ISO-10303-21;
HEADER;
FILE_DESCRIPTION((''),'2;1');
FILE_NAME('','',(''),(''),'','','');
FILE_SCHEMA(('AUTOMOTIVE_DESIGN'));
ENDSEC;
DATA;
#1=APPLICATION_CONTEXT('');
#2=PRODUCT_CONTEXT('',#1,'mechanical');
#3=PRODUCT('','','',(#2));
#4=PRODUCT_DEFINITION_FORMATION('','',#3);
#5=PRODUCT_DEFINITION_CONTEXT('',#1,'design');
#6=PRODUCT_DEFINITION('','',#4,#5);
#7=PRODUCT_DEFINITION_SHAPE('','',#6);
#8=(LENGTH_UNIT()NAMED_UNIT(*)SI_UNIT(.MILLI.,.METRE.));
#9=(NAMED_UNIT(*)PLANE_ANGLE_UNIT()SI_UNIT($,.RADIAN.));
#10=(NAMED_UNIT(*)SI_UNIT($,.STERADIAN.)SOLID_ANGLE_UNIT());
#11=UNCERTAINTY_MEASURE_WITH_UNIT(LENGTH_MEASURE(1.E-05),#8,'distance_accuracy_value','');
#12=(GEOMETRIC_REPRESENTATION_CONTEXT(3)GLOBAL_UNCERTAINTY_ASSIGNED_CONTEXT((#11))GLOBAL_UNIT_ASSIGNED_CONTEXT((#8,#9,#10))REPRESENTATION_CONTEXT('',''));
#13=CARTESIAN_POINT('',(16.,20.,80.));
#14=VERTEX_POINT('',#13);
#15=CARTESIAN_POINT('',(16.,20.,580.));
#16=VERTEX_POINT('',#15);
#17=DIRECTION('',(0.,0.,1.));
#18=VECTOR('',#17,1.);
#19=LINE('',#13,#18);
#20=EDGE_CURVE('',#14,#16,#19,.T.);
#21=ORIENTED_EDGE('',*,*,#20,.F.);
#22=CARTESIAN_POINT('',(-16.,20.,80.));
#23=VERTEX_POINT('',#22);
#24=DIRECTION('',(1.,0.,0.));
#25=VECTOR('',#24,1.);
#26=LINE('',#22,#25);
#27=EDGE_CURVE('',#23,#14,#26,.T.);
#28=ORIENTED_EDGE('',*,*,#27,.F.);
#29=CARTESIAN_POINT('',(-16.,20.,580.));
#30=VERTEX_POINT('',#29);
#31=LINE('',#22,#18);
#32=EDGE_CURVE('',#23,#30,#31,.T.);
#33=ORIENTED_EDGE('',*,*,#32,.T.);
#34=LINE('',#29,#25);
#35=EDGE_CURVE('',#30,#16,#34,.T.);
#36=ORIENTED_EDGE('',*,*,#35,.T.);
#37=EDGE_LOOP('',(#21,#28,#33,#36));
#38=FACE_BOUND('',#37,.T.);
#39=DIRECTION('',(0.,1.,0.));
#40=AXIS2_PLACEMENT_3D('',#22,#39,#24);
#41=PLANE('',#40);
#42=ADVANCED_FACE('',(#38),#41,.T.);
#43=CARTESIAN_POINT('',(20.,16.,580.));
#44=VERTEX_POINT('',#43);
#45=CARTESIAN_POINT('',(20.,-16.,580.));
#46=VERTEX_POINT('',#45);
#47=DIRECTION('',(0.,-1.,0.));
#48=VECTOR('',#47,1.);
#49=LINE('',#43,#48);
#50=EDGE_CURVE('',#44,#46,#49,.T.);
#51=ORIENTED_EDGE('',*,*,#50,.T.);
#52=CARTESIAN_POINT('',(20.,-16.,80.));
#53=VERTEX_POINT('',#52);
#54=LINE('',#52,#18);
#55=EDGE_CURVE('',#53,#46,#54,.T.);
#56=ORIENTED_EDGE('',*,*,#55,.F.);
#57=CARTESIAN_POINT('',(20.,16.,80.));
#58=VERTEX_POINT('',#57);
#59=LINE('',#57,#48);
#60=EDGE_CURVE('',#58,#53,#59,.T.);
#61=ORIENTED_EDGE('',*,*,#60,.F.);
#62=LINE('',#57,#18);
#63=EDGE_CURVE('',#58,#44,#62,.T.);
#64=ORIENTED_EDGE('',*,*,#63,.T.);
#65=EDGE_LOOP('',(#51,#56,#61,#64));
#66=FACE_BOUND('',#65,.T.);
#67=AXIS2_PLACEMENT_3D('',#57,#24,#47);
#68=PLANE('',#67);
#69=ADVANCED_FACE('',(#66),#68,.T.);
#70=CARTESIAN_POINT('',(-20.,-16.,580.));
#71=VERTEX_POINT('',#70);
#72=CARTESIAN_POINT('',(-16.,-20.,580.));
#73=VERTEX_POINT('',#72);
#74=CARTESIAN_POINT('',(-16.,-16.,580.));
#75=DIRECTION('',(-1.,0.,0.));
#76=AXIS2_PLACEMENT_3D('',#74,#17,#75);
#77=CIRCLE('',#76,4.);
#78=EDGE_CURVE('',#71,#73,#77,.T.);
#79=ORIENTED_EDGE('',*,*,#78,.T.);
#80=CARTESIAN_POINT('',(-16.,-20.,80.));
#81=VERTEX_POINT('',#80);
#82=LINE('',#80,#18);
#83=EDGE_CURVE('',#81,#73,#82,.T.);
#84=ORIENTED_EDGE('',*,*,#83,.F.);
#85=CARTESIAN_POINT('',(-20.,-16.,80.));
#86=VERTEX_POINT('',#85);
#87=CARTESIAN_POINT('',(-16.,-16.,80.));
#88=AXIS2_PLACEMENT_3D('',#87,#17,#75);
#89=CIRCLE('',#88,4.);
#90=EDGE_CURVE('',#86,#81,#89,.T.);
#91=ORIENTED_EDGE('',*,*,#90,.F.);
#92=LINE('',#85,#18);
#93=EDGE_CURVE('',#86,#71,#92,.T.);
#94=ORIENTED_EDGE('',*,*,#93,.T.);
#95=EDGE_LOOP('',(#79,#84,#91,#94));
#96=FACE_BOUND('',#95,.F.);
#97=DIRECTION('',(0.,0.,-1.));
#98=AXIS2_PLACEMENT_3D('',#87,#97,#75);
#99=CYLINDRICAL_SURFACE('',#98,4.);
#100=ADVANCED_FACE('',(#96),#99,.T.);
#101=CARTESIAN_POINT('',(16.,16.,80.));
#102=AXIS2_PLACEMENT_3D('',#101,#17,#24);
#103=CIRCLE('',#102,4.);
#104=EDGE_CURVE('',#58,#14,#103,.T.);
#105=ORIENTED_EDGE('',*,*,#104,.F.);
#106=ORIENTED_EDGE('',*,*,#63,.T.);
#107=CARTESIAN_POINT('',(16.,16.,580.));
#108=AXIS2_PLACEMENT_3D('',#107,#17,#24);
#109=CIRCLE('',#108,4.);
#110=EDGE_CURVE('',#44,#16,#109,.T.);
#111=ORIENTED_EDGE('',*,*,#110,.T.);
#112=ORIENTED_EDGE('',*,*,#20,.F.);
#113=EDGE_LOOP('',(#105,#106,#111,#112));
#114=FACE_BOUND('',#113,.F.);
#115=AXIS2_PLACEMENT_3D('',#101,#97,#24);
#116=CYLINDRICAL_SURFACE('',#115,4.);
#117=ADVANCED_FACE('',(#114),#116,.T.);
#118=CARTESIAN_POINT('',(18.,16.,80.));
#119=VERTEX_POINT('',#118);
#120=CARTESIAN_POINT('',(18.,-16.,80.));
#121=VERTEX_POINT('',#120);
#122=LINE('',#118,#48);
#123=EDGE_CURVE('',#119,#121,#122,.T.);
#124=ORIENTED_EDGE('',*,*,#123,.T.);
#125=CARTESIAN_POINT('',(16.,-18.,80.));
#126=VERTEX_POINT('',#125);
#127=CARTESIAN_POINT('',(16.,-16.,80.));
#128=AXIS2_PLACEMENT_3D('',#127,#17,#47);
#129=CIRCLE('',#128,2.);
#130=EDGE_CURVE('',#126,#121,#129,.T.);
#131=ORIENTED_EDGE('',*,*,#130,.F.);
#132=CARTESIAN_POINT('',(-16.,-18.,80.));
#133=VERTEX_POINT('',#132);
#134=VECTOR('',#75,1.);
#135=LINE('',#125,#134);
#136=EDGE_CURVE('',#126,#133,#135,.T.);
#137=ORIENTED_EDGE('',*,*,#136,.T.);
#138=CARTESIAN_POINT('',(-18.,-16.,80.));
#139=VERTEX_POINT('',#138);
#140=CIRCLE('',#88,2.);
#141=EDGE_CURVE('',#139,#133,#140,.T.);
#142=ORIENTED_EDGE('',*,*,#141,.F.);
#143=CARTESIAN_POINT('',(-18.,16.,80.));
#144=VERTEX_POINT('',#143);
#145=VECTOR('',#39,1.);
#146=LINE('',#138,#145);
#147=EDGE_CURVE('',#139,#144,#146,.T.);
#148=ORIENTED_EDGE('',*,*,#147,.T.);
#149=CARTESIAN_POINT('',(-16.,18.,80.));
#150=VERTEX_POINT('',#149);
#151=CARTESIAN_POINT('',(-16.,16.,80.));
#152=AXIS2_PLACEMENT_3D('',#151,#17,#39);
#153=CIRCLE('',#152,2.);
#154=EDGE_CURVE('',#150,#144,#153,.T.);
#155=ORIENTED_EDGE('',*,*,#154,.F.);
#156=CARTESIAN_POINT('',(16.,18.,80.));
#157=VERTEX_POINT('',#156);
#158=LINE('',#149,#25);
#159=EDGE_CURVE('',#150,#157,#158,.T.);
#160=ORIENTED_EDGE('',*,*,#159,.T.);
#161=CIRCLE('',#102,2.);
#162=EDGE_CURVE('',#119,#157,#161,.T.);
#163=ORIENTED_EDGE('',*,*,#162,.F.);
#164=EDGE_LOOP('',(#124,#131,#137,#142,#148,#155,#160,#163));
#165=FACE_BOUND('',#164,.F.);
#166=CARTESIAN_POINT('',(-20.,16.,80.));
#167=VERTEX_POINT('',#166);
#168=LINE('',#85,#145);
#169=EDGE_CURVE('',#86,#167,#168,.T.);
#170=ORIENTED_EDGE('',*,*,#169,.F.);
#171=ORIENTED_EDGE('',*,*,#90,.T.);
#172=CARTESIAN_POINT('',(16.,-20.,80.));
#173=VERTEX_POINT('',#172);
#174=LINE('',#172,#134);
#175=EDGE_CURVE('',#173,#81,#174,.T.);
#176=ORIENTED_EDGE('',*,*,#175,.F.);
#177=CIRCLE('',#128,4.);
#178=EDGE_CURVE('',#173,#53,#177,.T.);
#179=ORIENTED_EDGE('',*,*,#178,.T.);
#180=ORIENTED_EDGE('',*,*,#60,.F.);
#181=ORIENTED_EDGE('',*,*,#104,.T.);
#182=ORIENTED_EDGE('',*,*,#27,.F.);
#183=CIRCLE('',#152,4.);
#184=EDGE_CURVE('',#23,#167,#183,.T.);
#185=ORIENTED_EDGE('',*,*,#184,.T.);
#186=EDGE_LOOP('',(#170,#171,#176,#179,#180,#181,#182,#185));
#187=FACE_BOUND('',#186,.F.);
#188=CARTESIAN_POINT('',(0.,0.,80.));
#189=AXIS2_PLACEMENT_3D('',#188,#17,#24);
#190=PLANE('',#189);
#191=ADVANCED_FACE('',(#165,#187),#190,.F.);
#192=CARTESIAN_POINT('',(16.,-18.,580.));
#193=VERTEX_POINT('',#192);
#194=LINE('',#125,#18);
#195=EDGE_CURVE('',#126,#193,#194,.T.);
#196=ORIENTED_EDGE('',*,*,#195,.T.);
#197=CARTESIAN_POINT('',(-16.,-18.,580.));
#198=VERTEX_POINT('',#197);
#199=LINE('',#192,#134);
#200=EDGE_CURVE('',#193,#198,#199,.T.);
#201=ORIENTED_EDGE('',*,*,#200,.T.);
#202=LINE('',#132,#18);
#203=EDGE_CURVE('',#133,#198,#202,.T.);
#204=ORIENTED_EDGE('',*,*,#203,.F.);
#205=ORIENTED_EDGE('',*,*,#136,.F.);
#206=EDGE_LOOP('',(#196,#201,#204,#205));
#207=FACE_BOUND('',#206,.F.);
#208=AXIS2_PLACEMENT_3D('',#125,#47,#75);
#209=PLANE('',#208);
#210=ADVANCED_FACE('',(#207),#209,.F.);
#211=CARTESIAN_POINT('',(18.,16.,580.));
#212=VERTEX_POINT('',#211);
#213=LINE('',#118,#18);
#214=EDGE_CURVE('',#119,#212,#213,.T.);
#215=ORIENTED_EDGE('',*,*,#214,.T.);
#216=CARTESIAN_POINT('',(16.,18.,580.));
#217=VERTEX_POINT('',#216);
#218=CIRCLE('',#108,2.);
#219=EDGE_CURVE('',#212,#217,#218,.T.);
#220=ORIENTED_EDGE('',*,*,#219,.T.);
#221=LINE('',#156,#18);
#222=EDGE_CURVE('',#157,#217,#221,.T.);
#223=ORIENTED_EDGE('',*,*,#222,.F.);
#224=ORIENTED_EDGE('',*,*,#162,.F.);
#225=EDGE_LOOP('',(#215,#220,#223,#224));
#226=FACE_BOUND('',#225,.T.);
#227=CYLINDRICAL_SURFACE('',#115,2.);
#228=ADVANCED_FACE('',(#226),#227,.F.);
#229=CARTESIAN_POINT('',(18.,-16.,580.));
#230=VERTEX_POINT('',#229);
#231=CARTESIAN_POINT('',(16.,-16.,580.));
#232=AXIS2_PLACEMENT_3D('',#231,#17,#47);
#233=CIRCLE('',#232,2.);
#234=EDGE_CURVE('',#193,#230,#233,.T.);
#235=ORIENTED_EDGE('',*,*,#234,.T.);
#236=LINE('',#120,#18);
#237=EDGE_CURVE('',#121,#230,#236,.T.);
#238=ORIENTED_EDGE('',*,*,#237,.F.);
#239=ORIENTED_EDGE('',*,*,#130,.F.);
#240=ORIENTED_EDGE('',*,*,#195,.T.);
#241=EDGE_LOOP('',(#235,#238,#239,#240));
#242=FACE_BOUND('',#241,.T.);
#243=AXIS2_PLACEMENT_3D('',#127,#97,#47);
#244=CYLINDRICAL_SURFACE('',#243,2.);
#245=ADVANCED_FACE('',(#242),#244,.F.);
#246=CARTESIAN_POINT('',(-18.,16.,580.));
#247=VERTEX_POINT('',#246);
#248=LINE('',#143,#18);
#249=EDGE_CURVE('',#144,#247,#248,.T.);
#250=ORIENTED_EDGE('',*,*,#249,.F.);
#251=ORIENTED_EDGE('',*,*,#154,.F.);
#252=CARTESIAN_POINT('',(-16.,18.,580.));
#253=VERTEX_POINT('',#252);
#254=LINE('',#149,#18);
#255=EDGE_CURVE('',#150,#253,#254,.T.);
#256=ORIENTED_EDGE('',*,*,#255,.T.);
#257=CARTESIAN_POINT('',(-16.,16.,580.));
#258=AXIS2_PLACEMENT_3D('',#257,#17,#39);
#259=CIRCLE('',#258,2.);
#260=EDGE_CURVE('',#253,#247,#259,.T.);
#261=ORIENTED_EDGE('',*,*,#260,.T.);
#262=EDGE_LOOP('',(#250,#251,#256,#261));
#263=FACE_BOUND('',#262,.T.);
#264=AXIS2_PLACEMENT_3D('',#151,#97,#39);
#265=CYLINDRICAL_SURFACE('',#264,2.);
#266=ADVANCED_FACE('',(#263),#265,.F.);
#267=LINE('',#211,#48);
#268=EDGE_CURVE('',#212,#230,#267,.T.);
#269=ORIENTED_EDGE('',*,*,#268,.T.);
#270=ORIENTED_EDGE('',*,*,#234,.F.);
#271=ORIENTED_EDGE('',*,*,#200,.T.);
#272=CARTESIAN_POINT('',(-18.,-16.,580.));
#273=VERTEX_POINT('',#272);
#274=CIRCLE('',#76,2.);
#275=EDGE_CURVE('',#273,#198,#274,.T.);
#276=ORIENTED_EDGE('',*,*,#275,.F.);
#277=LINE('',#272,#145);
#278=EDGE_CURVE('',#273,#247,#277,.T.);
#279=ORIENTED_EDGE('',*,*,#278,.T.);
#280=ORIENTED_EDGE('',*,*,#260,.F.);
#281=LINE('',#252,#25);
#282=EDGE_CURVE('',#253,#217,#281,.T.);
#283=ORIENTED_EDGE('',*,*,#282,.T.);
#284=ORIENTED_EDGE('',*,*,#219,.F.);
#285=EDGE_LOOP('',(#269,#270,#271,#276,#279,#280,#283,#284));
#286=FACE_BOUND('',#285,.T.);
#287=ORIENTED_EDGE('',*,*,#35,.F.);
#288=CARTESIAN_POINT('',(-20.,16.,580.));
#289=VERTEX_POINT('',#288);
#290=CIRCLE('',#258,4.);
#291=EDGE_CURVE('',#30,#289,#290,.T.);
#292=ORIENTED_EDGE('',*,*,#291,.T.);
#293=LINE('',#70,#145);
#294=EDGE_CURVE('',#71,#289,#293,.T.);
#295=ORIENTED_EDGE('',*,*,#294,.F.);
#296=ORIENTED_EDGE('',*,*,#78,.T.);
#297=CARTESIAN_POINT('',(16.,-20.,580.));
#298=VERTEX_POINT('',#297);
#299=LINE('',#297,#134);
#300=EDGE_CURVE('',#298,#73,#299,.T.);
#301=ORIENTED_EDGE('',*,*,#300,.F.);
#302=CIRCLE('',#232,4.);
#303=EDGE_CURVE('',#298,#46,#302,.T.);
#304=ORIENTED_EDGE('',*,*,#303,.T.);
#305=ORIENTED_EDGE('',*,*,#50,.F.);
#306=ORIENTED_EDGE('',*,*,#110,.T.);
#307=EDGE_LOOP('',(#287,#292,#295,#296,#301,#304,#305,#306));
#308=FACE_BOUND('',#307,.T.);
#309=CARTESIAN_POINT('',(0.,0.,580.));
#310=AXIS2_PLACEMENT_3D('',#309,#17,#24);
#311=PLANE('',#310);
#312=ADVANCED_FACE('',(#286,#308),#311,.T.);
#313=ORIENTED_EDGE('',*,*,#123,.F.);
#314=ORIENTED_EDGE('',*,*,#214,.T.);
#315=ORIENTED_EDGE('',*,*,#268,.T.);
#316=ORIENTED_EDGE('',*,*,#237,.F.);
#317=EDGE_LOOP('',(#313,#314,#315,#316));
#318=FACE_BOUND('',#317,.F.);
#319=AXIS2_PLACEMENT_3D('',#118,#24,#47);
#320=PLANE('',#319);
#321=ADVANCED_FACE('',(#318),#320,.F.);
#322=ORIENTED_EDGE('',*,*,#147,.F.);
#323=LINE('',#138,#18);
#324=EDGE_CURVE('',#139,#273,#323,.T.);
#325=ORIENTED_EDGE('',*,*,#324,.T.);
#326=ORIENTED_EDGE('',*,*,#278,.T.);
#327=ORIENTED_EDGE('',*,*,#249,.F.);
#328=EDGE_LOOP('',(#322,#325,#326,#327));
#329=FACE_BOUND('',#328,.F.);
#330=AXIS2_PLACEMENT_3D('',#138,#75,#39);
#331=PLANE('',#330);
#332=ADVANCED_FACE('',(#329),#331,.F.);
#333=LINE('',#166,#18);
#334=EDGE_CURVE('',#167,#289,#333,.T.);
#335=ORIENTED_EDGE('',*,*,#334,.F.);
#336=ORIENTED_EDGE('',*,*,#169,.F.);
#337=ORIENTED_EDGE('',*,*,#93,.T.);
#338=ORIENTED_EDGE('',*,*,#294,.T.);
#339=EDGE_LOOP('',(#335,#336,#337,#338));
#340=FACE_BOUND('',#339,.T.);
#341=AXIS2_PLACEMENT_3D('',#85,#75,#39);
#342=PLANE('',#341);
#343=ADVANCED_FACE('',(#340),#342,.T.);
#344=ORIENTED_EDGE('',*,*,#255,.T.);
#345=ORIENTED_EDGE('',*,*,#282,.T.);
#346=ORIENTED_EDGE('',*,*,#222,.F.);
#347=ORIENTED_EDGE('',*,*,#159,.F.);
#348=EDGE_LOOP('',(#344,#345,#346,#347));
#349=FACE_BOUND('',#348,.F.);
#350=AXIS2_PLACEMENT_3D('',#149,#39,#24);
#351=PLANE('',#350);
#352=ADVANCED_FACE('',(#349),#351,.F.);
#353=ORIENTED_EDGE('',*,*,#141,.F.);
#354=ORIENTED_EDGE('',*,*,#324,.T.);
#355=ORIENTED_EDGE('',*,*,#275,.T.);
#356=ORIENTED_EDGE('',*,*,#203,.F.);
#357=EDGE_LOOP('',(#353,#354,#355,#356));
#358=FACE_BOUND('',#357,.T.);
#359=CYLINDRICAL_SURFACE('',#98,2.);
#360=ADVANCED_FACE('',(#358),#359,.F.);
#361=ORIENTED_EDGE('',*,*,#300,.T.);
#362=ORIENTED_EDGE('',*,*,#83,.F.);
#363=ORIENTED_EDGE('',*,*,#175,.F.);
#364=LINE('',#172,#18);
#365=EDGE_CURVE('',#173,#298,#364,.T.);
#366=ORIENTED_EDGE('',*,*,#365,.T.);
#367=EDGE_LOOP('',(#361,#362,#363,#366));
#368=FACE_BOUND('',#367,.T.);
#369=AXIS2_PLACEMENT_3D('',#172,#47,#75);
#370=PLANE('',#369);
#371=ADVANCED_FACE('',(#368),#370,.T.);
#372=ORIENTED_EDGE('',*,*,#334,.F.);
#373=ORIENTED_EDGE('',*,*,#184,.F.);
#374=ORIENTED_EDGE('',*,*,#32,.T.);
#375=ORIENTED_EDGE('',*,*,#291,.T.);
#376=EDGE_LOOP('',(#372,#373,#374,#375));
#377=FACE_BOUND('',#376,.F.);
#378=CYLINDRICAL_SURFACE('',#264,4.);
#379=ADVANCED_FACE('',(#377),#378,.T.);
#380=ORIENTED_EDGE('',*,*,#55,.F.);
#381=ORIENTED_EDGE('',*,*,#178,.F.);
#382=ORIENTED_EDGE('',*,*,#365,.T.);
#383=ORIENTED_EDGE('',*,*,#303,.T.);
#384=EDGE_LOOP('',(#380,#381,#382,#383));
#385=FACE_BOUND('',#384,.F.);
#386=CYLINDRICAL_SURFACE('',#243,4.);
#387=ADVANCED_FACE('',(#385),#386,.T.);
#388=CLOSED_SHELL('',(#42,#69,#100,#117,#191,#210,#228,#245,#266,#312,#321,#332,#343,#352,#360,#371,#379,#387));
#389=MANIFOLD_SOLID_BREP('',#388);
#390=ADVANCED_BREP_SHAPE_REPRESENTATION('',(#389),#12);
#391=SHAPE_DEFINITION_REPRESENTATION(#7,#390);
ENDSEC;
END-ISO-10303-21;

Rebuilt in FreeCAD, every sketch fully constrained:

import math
import FreeCAD as App
import Part
import Sketcher

V = App.Vector

doc = App.newDocument("Part")
params = doc.addObject("Spreadsheet::Sheet", "Params")
for row, (alias, value) in enumerate([
    ("sketch1_radius", "4 mm"),
    ("sketch1_radius2", "2 mm"),
    ("pad1_length", "500 mm"),
], start=1):
    params.set(f"A{row}", alias)
    params.set(f"B{row}", "=" + value)
    params.setAlias(f"B{row}", alias)

body = doc.addObject("PartDesign::Body", "Body")

sketch1 = body.newObject("Sketcher::SketchObject", "Sketch")
sketch1.AttachmentSupport = (doc.getObject("XY_Plane"), [""])
sketch1.MapMode = "FlatFace"
sketch1.AttachmentOffset = App.Placement(V(0, 0, 80), App.Rotation())
sketch1.addGeometry([
    Part.LineSegment(V(-20, 16, 0), V(-20, -16, 0)),
    Part.ArcOfCircle(Part.Circle(V(-16, -16, 0), V(0, 0, 1), 4), math.radians(180), math.radians(270)),
    Part.LineSegment(V(-16, -20, 0), V(16, -20, 0)),
    Part.ArcOfCircle(Part.Circle(V(16, -16, 0), V(0, 0, 1), 4), math.radians(-90), math.radians(0)),
    Part.LineSegment(V(20, -16, 0), V(20, 16, 0)),
    Part.ArcOfCircle(Part.Circle(V(16, 16, 0), V(0, 0, 1), 4), math.radians(0), math.radians(90)),
    Part.LineSegment(V(16, 20, 0), V(-16, 20, 0)),
    Part.ArcOfCircle(Part.Circle(V(-16, 16, 0), V(0, 0, 1), 4), math.radians(90), math.radians(180)),
    Part.ArcOfCircle(Part.Circle(V(-16, 16, 0), V(0, 0, 1), 2), math.radians(90), math.radians(180)),
    Part.LineSegment(V(-16, 18, 0), V(16, 18, 0)),
    Part.ArcOfCircle(Part.Circle(V(16, 16, 0), V(0, 0, 1), 2), math.radians(0), math.radians(90)),
    Part.LineSegment(V(18, 16, 0), V(18, -16, 0)),
    Part.ArcOfCircle(Part.Circle(V(16, -16, 0), V(0, 0, 1), 2), math.radians(-90), math.radians(0)),
    Part.LineSegment(V(16, -18, 0), V(-16, -18, 0)),
    Part.ArcOfCircle(Part.Circle(V(-16, -16, 0), V(0, 0, 1), 2), math.radians(180), math.radians(270)),
    Part.LineSegment(V(-18, -16, 0), V(-18, 16, 0)),
], False)
sketch1.addConstraint([
    Sketcher.Constraint("Tangent", 0, 2, 1, 1),
    Sketcher.Constraint("Tangent", 1, 2, 2, 1),
    Sketcher.Constraint("Tangent", 2, 2, 3, 1),
    Sketcher.Constraint("Tangent", 3, 2, 4, 1),
    Sketcher.Constraint("Tangent", 4, 2, 5, 1),
    Sketcher.Constraint("Tangent", 5, 2, 6, 1),
    Sketcher.Constraint("Tangent", 6, 2, 7, 1),
    Sketcher.Constraint("Tangent", 7, 2, 0, 1),
    Sketcher.Constraint("Tangent", 8, 1, 9, 1),
    Sketcher.Constraint("Tangent", 9, 2, 10, 2),
    Sketcher.Constraint("Tangent", 10, 1, 11, 1),
    Sketcher.Constraint("Tangent", 11, 2, 12, 2),
    Sketcher.Constraint("Tangent", 12, 1, 13, 1),
    Sketcher.Constraint("Tangent", 13, 2, 14, 2),
    Sketcher.Constraint("Tangent", 14, 1, 15, 1),
    Sketcher.Constraint("Tangent", 15, 2, 8, 2),
    Sketcher.Constraint("Vertical", 0),
    Sketcher.Constraint("Horizontal", 2),
    Sketcher.Constraint("Vertical", 4),
    Sketcher.Constraint("Horizontal", 6),
    Sketcher.Constraint("Horizontal", 9),
    Sketcher.Constraint("Vertical", 11),
    Sketcher.Constraint("Horizontal", 13),
    Sketcher.Constraint("Vertical", 15),
    Sketcher.Constraint("Coincident", 8, 3, 7, 3),
    Sketcher.Constraint("Coincident", 10, 3, 5, 3),
    Sketcher.Constraint("Coincident", 12, 3, 3, 3),
    Sketcher.Constraint("Equal", 1, 3),
    Sketcher.Constraint("Equal", 3, 5),
    Sketcher.Constraint("Equal", 5, 7),
    Sketcher.Constraint("Equal", 12, 14),
    Sketcher.Constraint("Symmetric", 1, 3, 5, 3, -1, 1),
    Sketcher.Constraint("Equal", 13, 0),
    Sketcher.Constraint("Radius", 1, 4.0),
    Sketcher.Constraint("Radius", 8, 2.0),
    Sketcher.Constraint("DistanceX", 0, 2, -1, 1, 20.0),
])
sketch1.setExpression("Constraints[33]", "Params.sketch1_radius")
sketch1.setExpression("Constraints[34]", "Params.sketch1_radius2")
pad1 = body.newObject("PartDesign::Pad", "Pad")
pad1.Profile = sketch1
pad1.setExpression("Length", "Params.pad1_length")

doc.recompute()
